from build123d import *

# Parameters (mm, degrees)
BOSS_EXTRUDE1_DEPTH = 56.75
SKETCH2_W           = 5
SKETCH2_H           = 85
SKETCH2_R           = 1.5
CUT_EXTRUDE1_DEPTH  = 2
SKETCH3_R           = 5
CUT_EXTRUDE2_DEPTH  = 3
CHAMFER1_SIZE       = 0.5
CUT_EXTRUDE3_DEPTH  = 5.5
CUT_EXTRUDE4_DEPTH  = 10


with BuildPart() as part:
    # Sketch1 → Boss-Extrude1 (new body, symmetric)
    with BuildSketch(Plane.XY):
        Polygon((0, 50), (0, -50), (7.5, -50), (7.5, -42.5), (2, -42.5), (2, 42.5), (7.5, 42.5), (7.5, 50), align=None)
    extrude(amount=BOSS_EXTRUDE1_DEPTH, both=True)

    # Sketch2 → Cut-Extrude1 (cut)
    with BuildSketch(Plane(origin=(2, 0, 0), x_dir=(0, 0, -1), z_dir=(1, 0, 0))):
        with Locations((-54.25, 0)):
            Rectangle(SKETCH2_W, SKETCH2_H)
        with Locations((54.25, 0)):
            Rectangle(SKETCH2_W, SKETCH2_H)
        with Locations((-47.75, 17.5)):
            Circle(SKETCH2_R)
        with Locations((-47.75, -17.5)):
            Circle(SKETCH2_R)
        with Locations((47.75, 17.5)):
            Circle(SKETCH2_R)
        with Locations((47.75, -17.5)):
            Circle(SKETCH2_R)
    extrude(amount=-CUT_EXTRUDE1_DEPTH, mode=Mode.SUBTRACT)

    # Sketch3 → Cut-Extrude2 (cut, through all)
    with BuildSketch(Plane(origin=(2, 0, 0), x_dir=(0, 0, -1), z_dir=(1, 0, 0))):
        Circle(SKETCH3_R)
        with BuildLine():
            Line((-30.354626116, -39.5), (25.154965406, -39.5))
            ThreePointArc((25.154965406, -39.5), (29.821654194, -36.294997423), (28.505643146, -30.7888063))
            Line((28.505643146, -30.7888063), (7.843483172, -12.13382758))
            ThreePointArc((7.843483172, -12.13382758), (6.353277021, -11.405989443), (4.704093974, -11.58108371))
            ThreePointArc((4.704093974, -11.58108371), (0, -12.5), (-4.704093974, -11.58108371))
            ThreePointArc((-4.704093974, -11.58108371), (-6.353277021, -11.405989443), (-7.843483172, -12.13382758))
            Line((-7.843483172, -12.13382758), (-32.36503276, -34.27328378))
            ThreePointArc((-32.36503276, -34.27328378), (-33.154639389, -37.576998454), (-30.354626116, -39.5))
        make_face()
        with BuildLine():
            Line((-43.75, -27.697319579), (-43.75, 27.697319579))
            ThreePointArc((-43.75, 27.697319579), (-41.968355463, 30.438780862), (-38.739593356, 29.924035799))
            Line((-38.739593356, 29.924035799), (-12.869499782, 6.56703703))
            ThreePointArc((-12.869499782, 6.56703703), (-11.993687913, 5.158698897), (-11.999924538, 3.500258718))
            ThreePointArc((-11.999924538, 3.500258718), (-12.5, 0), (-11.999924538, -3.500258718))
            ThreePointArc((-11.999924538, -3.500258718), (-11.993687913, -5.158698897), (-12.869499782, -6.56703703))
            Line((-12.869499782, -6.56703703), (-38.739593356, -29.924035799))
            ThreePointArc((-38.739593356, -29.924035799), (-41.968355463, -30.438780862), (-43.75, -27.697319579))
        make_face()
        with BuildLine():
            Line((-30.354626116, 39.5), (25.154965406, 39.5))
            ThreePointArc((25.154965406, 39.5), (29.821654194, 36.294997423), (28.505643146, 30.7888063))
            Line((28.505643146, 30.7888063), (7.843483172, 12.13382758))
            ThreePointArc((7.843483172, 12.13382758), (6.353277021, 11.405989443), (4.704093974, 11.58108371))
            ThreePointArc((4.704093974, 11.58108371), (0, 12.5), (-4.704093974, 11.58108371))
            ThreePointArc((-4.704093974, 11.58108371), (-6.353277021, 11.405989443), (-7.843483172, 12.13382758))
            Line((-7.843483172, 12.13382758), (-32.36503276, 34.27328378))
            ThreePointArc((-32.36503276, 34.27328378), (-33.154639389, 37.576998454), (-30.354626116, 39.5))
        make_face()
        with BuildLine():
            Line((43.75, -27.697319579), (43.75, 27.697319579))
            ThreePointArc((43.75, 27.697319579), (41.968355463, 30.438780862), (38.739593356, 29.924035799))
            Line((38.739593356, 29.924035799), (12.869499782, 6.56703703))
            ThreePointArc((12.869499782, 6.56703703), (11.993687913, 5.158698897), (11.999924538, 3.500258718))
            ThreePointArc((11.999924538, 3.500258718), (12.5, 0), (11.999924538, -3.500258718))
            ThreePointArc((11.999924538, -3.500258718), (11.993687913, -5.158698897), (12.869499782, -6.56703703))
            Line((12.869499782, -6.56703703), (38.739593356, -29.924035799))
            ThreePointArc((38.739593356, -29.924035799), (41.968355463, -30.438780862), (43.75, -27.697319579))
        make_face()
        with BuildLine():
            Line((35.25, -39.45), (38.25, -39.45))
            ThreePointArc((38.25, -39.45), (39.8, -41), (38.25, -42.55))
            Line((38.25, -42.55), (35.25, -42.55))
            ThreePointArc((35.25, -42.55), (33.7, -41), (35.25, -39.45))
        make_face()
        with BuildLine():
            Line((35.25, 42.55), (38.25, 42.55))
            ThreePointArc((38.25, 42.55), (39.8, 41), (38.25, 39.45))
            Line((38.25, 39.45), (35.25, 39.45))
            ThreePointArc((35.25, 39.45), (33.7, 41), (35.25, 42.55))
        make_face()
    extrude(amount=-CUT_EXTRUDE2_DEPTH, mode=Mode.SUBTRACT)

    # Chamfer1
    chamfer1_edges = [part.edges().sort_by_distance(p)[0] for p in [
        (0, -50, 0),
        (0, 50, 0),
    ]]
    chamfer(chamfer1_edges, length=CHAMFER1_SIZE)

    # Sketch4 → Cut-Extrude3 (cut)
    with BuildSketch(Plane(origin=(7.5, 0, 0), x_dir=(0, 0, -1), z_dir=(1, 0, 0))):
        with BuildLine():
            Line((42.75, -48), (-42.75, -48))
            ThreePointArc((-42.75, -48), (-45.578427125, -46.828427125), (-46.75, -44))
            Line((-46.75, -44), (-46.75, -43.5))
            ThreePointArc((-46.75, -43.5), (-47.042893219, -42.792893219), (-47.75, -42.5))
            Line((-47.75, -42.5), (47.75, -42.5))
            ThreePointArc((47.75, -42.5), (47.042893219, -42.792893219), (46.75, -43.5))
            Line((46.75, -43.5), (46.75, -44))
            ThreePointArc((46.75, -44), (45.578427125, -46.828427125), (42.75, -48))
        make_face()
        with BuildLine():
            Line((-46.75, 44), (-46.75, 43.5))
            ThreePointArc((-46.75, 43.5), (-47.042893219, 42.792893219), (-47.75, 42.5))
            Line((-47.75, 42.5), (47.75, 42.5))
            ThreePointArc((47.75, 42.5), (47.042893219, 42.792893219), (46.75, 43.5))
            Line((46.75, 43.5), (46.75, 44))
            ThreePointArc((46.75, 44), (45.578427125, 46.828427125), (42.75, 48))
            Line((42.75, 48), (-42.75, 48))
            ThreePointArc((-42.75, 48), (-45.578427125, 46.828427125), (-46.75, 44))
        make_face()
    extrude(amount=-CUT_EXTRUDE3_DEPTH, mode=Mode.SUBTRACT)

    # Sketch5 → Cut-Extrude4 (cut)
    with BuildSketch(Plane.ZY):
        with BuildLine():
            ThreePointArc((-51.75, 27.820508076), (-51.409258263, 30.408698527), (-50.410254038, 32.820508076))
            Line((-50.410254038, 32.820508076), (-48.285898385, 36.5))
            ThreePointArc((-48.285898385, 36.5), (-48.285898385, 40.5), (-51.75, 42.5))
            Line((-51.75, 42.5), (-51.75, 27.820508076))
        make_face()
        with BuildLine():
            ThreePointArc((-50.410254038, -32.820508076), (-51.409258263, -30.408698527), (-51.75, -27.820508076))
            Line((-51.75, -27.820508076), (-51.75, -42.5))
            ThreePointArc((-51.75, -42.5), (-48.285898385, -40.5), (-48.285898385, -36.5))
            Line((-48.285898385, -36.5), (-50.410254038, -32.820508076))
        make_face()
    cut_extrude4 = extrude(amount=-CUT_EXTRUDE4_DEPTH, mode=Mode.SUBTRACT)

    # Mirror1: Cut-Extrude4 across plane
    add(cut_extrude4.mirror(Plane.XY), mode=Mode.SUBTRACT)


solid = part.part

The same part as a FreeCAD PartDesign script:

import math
import FreeCAD as App
import Part
import Sketcher
Q = App.Units.Quantity


def edges_at(feature, points):
    """Names of the edges that pass closest to the given points."""
    edges = feature.Shape.Edges
    near = lambda p: min(range(len(edges)), key=lambda i: edges[i].distToShape(Part.Vertex(*p))[0])
    return sorted({f"Edge{near(p) + 1}" for p in points})

doc = App.newDocument("Part")
body = doc.addObject("PartDesign::Body", "Body")

# Sketch on XY plane
sketch1 = body.newObject("Sketcher::SketchObject", "Sketch")
sketch1.AttachmentSupport = (doc.getObject("XY_Plane"), [""])
sketch1.MapMode = "FlatFace"
sketch1.addGeometry(Part.LineSegment(App.Vector(0, 50, 0), App.Vector(0, -50, 0)), False)
sketch1.addGeometry(Part.LineSegment(App.Vector(0, -50, 0), App.Vector(8, -50, 0)), False)
sketch1.addGeometry(Part.LineSegment(App.Vector(8, -50, 0), App.Vector(8, -42, 0)), False)
sketch1.addGeometry(Part.LineSegment(App.Vector(8, -42, 0), App.Vector(2, -42, 0)), False)
sketch1.addGeometry(Part.LineSegment(App.Vector(2, -42, 0), App.Vector(2, 42, 0)), False)
sketch1.addGeometry(Part.LineSegment(App.Vector(2, 42, 0), App.Vector(8, 42, 0)), False)
sketch1.addGeometry(Part.LineSegment(App.Vector(8, 42, 0), App.Vector(8, 50, 0)), False)
sketch1.addGeometry(Part.LineSegment(App.Vector(8, 50, 0), App.Vector(0, 50, 0)), False)
sketch1.addConstraint(Sketcher.Constraint("Coincident", 0, 2, 1, 1))
sketch1.addConstraint(Sketcher.Constraint("Coincident", 1, 2, 2, 1))
sketch1.addConstraint(Sketcher.Constraint("Coincident", 2, 2, 3, 1))
sketch1.addConstraint(Sketcher.Constraint("Coincident", 3, 2, 4, 1))
sketch1.addConstraint(Sketcher.Constraint("Coincident", 4, 2, 5, 1))
sketch1.addConstraint(Sketcher.Constraint("Coincident", 5, 2, 6, 1))
sketch1.addConstraint(Sketcher.Constraint("Coincident", 6, 2, 7, 1))
sketch1.addConstraint(Sketcher.Constraint("Coincident", 7, 2, 0, 1))
sketch1.addConstraint(Sketcher.Constraint("Vertical", 0))
sketch1.addConstraint(Sketcher.Constraint("Horizontal", 1))
sketch1.addConstraint(Sketcher.Constraint("Vertical", 2))
sketch1.addConstraint(Sketcher.Constraint("Horizontal", 3))
sketch1.addConstraint(Sketcher.Constraint("Vertical", 4))
sketch1.addConstraint(Sketcher.Constraint("Horizontal", 5))
sketch1.addConstraint(Sketcher.Constraint("Vertical", 6))
sketch1.addConstraint(Sketcher.Constraint("Horizontal", 7))
sketch1.addConstraint(Sketcher.Constraint("Symmetric", 0, 2, 7, 2, -1, 1))
sketch1.addConstraint(Sketcher.Constraint("Symmetric", 2, 2, 5, 2, -1))
sketch1.addConstraint(Sketcher.Constraint("Equal", 7, 2))
sketch1.addConstraint(Sketcher.Constraint("DistanceY", 0, 2, 0, 1, Q("100 mm")))
sketch1.addConstraint(Sketcher.Constraint("DistanceY", 4, 1, 4, 2, Q("85 mm")))
sketch1.addConstraint(Sketcher.Constraint("DistanceX", 3, 2, 3, 1, Q("5.5 mm")))
pad1 = body.newObject("PartDesign::Pad", "Pad")
pad1.Profile = sketch1
pad1.Length = 113.5
pad1.Midplane = True

# Sketch on YZ plane
sketch2 = body.newObject("Sketcher::SketchObject", "Sketch001")
sketch2.AttachmentSupport = (doc.getObject("YZ_Plane"), [""])
sketch2.MapMode = "FlatFace"
sketch2.AttachmentOffset = App.Placement(App.Vector(0, 0, 2), App.Rotation())
sketch2.addGeometry(Part.LineSegment(App.Vector(42.5, 56.8, 0), App.Vector(-42.5, 56.8, 0)), False)
sketch2.addGeometry(Part.LineSegment(App.Vector(-42.5, 56.8, 0), App.Vector(-42.5, 51.8, 0)), False)
sketch2.addGeometry(Part.LineSegment(App.Vector(-42.5, 51.8, 0), App.Vector(42.5, 51.8, 0)), False)
sketch2.addGeometry(Part.LineSegment(App.Vector(42.5, 51.8, 0), App.Vector(42.5, 56.8, 0)), False)
sketch2.addGeometry(Part.LineSegment(App.Vector(42.5, -51.8, 0), App.Vector(-42.5, -51.8, 0)), False)
sketch2.addGeometry(Part.LineSegment(App.Vector(-42.5, -51.8, 0), App.Vector(-42.5, -56.8, 0)), False)
sketch2.addGeometry(Part.LineSegment(App.Vector(-42.5, -56.8, 0), App.Vector(42.5, -56.8, 0)), False)
sketch2.addGeometry(Part.LineSegment(App.Vector(42.5, -56.8, 0), App.Vector(42.5, -51.8, 0)), False)
sketch2.addGeometry(Part.Circle(App.Vector(17.5, 47.8, 0), App.Vector(0, 0, 1), 1.5), False)
sketch2.addGeometry(Part.Circle(App.Vector(-17.5, 47.8, 0), App.Vector(0, 0, 1), 1.5), False)
sketch2.addGeometry(Part.Circle(App.Vector(17.5, -47.8, 0), App.Vector(0, 0, 1), 1.5), False)
sketch2.addGeometry(Part.Circle(App.Vector(-17.5, -47.8, 0), App.Vector(0, 0, 1), 1.5), False)
sketch2.addConstraint(Sketcher.Constraint("Coincident", 0, 2, 1, 1))
sketch2.addConstraint(Sketcher.Constraint("Coincident", 1, 2, 2, 1))
sketch2.addConstraint(Sketcher.Constraint("Coincident", 2, 2, 3, 1))
sketch2.addConstraint(Sketcher.Constraint("Coincident", 3, 2, 0, 1))
sketch2.addConstraint(Sketcher.Constraint("Coincident", 4, 2, 5, 1))
sketch2.addConstraint(Sketcher.Constraint("Coincident", 5, 2, 6, 1))
sketch2.addConstraint(Sketcher.Constraint("Coincident", 6, 2, 7, 1))
sketch2.addConstraint(Sketcher.Constraint("Coincident", 7, 2, 4, 1))
sketch2.addConstraint(Sketcher.Constraint("Horizontal", 0))
sketch2.addConstraint(Sketcher.Constraint("Vertical", 1))
sketch2.addConstraint(Sketcher.Constraint("Horizontal", 2))
sketch2.addConstraint(Sketcher.Constraint("Vertical", 3))
sketch2.addConstraint(Sketcher.Constraint("Horizontal", 4))
sketch2.addConstraint(Sketcher.Constraint("Vertical", 5))
sketch2.addConstraint(Sketcher.Constraint("Horizontal", 6))
sketch2.addConstraint(Sketcher.Constraint("Vertical", 7))
sketch2.addConstraint(Sketcher.Constraint("Equal", 8, 9))
sketch2.addConstraint(Sketcher.Constraint("Equal", 9, 10))
sketch2.addConstraint(Sketcher.Constraint("Equal", 10, 11))
sketch2.addConstraint(Sketcher.Constraint("Symmetric", 9, 3, 10, 3, -1, 1))
sketch2.addConstraint(Sketcher.Constraint("Symmetric", 8, 3, 11, 3, -1, 1))
sketch2.addConstraint(Sketcher.Constraint("Symmetric", 2, 2, 4, 2, -1, 1))
sketch2.addConstraint(Sketcher.Constraint("Symmetric", 0, 2, 6, 2, -1, 1))
sketch2.addConstraint(Sketcher.Constraint("Symmetric", 8, 3, 9, 3, -2))
sketch2.addConstraint(Sketcher.Constraint("Vertical", 1, 2, 4, 2))
sketch2.addConstraint(Sketcher.Constraint("Diameter", 8, Q("3 mm")))
sketch2.addConstraint(Sketcher.Constraint("DistanceX", 0, 2, 0, 1, Q("85 mm")))
sketch2.addConstraint(Sketcher.Constraint("DistanceY", 1, 2, 1, 1, Q("5 mm")))
sketch2.addConstraint(Sketcher.Constraint("DistanceX", 9, 3, 8, 3, Q("35 mm")))
sketch2.addConstraint(Sketcher.Constraint("DistanceY", 9, 3, 0, 2, Q("9 mm")))
sketch2.addConstraint(Sketcher.Constraint("DistanceY", 10, 3, 8, 3, Q("95.5 mm")))
pocket1 = body.newObject("PartDesign::Pocket", "Pocket")
pocket1.Profile = sketch2
pocket1.Length = 2

# Sketch on YZ plane
sketch3 = body.newObject("Sketcher::SketchObject", "Sketch002")
sketch3.AttachmentSupport = (doc.getObject("YZ_Plane"), [""])
sketch3.MapMode = "FlatFace"
sketch3.AttachmentOffset = App.Placement(App.Vector(0, 0, 2), App.Rotation())
sketch3.addGeometry(Part.Circle(App.Vector(0, 0, 0), App.Vector(0, 0, 1), 5), False)
sketch3.addGeometry(Part.LineSegment(App.Vector(-39.5, 30.4, 0), App.Vector(-39.5, -25.2, 0)), False)
sketch3.addGeometry(Part.ArcOfCircle(Part.Circle(App.Vector(-34.5, -25.2, 0), App.Vector(0, 0, 1), 5), math.radians(-180), math.radians(-42)), False)
sketch3.addGeometry(Part.LineSegment(App.Vector(-30.8, -28.5, 0), App.Vector(-12.1, -7.8, 0)), False)
sketch3.addGeometry(Part.ArcOfCircle(Part.Circle(App.Vector(-14.4, -5.8, 0), App.Vector(0, 0, 1), 3), math.radians(-42), math.radians(22)), False)
sketch3.addGeometry(Part.ArcOfCircle(Part.Circle(App.Vector(0, 0, 0), App.Vector(0, 0, 1), 12.5), math.radians(158), math.radians(202)), False)
sketch3.addGeometry(Part.ArcOfCircle(Part.Circle(App.Vector(-14.4, 5.8, 0), App.Vector(0, 0, 1), 3), math.radians(-22), math.radians(42)), False)
sketch3.addGeometry(Part.LineSegment(App.Vector(-12.1, 7.8, 0), App.Vector(-34.3, 32.4, 0)), False)
sketch3.addGeometry(Part.ArcOfCircle(Part.Circle(App.Vector(-36.5, 30.4, 0), App.Vector(0, 0, 1), 3), math.radians(42), math.radians(180)), False)
sketch3.addGeometry(Part.LineSegment(App.Vector(27.7, 43.8, 0), App.Vector(-27.7, 43.8, 0)), False)
sketch3.addGeometry(Part.ArcOfCircle(Part.Circle(App.Vector(-27.7, 40.8, 0), App.Vector(0, 0, 1), 3), math.radians(90), math.radians(222)), False)
sketch3.addGeometry(Part.LineSegment(App.Vector(-29.9, 38.7, 0), App.Vector(-6.6, 12.9, 0)), False)
sketch3.addGeometry(Part.ArcOfCircle(Part.Circle(App.Vector(-4.3, 14.9, 0), App.Vector(0, 0, 1), 3), math.radians(-138), math.radians(-74)), False)
sketch3.addGeometry(Part.ArcOfCircle(Part.Circle(App.Vector(0, 0, 0), App.Vector(0, 0, 1), 12.5), math.radians(74), math.radians(106)), False)
sketch3.addGeometry(Part.ArcOfCircle(Part.Circle(App.Vector(4.3, 14.9, 0), App.Vector(0, 0, 1), 3), math.radians(-106), math.radians(-42)), False)
sketch3.addGeometry(Part.LineSegment(App.Vector(6.6, 12.9, 0), App.Vector(29.9, 38.7, 0)), False)
sketch3.addGeometry(Part.ArcOfCircle(Part.Circle(App.Vector(27.7, 40.8, 0), App.Vector(0, 0, 1), 3), math.radians(-42), math.radians(90)), False)
sketch3.addGeometry(Part.LineSegment(App.Vector(39.5, -25.2, 0), App.Vector(39.5, 30.4, 0)), False)
sketch3.addGeometry(Part.ArcOfCircle(Part.Circle(App.Vector(36.5, 30.4, 0), App.Vector(0, 0, 1), 3), math.radians(0), math.radians(138)), False)
sketch3.addGeometry(Part.LineSegment(App.Vector(34.3, 32.4, 0), App.Vector(12.1, 7.8, 0)), False)
sketch3.addGeometry(Part.ArcOfCircle(Part.Circle(App.Vector(14.4, 5.8, 0), App.Vector(0, 0, 1), 3), math.radians(138), math.radians(202)), False)
sketch3.addGeometry(Part.ArcOfCircle(Part.Circle(App.Vector(0, 0, 0), App.Vector(0, 0, 1), 12.5), math.radians(-22), math.radians(22)), False)
sketch3.addGeometry(Part.ArcOfCircle(Part.Circle(App.Vector(14.4, -5.8, 0), App.Vector(0, 0, 1), 3), math.radians(158), math.radians(222)), False)
sketch3.addGeometry(Part.LineSegment(App.Vector(12.1, -7.8, 0), App.Vector(30.8, -28.5, 0)), False)
sketch3.addGeometry(Part.ArcOfCircle(Part.Circle(App.Vector(34.5, -25.2, 0), App.Vector(0, 0, 1), 5), math.radians(-138), math.radians(0)), False)
sketch3.addGeometry(Part.LineSegment(App.Vector(-27.7, -43.8, 0), App.Vector(27.7, -43.8, 0)), False)
sketch3.addGeometry(Part.ArcOfCircle(Part.Circle(App.Vector(27.7, -40.8, 0), App.Vector(0, 0, 1), 3), math.radians(-90), math.radians(42)), False)
sketch3.addGeometry(Part.LineSegment(App.Vector(29.9, -38.7, 0), App.Vector(6.6, -12.9, 0)), False)
sketch3.addGeometry(Part.ArcOfCircle(Part.Circle(App.Vector(4.3, -14.9, 0), App.Vector(0, 0, 1), 3), math.radians(42), math.radians(106)), False)
sketch3.addGeometry(Part.ArcOfCircle(Part.Circle(App.Vector(0, 0, 0), App.Vector(0, 0, 1), 12.5), math.radians(-106), math.radians(-74)), False)
sketch3.addGeometry(Part.ArcOfCircle(Part.Circle(App.Vector(-4.3, -14.9, 0), App.Vector(0, 0, 1), 3), math.radians(74), math.radians(138)), False)
sketch3.addGeometry(Part.LineSegment(App.Vector(-6.6, -12.9, 0), App.Vector(-29.9, -38.7, 0)), False)
sketch3.addGeometry(Part.ArcOfCircle(Part.Circle(App.Vector(-27.7, -40.8, 0), App.Vector(0, 0, 1), 3), math.radians(138), math.radians(270)), False)
sketch3.addGeometry(Part.LineSegment(App.Vector(-39.5, -38.2, 0), App.Vector(-39.5, -35.2, 0)), False)
sketch3.addGeometry(Part.ArcOfCircle(Part.Circle(App.Vector(-41, -35.2, 0), App.Vector(0, 0, 1), 1.6), math.radians(0), math.radians(180)), False)
sketch3.addGeometry(Part.LineSegment(App.Vector(-42.5, -35.2, 0), App.Vector(-42.5, -38.2, 0)), False)
sketch3.addGeometry(Part.ArcOfCircle(Part.Circle(App.Vector(-41, -38.2, 0), App.Vector(0, 0, 1), 1.6), math.radians(180), math.radians(360)), False)
sketch3.addGeometry(Part.LineSegment(App.Vector(42.5, -38.2, 0), App.Vector(42.5, -35.2, 0)), False)
sketch3.addGeometry(Part.ArcOfCircle(Part.Circle(App.Vector(41, -35.2, 0), App.Vector(0, 0, 1), 1.6), math.radians(0), math.radians(180)), False)
sketch3.addGeometry(Part.LineSegment(App.Vector(39.5, -35.2, 0), App.Vector(39.5, -38.2, 0)), False)
sketch3.addGeometry(Part.ArcOfCircle(Part.Circle(App.Vector(41, -38.2, 0), App.Vector(0, 0, 1), 1.6), math.radians(180), math.radians(360)), False)
sketch3.addConstraint(Sketcher.Constraint("Tangent", 1, 2, 2, 1))
sketch3.addConstraint(Sketcher.Constraint("Tangent", 2, 2, 3, 1))
sketch3.addConstraint(Sketcher.Constraint("Tangent", 3, 2, 4, 1))
sketch3.addConstraint(Sketcher.Constraint("Tangent", 4, 2, 5, 2))
sketch3.addConstraint(Sketcher.Constraint("Tangent", 5, 1, 6, 1))
sketch3.addConstraint(Sketcher.Constraint("Tangent", 6, 2, 7, 1))
sketch3.addConstraint(Sketcher.Constraint("Tangent", 7, 2, 8, 1))
sketch3.addConstraint(Sketcher.Constraint("Tangent", 8, 2, 1, 1))
sketch3.addConstraint(Sketcher.Constraint("Tangent", 9, 2, 10, 1))
sketch3.addConstraint(Sketcher.Constraint("Tangent", 10, 2, 11, 1))
sketch3.addConstraint(Sketcher.Constraint("Tangent", 11, 2, 12, 1))
sketch3.addConstraint(Sketcher.Constraint("Tangent", 12, 2, 13, 2))
sketch3.addConstraint(Sketcher.Constraint("Tangent", 13, 1, 14, 1))
sketch3.addConstraint(Sketcher.Constraint("Tangent", 14, 2, 15, 1))
sketch3.addConstraint(Sketcher.Constraint("Tangent", 15, 2, 16, 1))
sketch3.addConstraint(Sketcher.Constraint("Tangent", 16, 2, 9, 1))
sketch3.addConstraint(Sketcher.Constraint("Tangent", 17, 2, 18, 1))
sketch3.addConstraint(Sketcher.Constraint("Tangent", 18, 2, 19, 1))
sketch3.addConstraint(Sketcher.Constraint("Tangent", 19, 2, 20, 1))
sketch3.addConstraint(Sketcher.Constraint("Tangent", 20, 2, 21, 2))
sketch3.addConstraint(Sketcher.Constraint("Tangent", 21, 1, 22, 1))
sketch3.addConstraint(Sketcher.Constraint("Tangent", 22, 2, 23, 1))
sketch3.addConstraint(Sketcher.Constraint("Tangent", 23, 2, 24, 1))
sketch3.addConstraint(Sketcher.Constraint("Tangent", 24, 2, 17, 1))
sketch3.addConstraint(Sketcher.Constraint("Tangent", 25, 2, 26, 1))
sketch3.addConstraint(Sketcher.Constraint("Tangent", 26, 2, 27, 1))
sketch3.addConstraint(Sketcher.Constraint("Tangent", 27, 2, 28, 1))
sketch3.addConstraint(Sketcher.Constraint("Tangent", 28, 2, 29, 2))
sketch3.addConstraint(Sketcher.Constraint("Tangent", 29, 1, 30, 1))
sketch3.addConstraint(Sketcher.Constraint("Tangent", 30, 2, 31, 1))
sketch3.addConstraint(Sketcher.Constraint("Tangent", 31, 2, 32, 1))
sketch3.addConstraint(Sketcher.Constraint("Tangent", 32, 2, 25, 1))
sketch3.addConstraint(Sketcher.Constraint("Tangent", 33, 2, 34, 1))
sketch3.addConstraint(Sketcher.Constraint("Tangent", 34, 2, 35, 1))
sketch3.addConstraint(Sketcher.Constraint("Tangent", 35, 2, 36, 1))
sketch3.addConstraint(Sketcher.Constraint("Tangent", 36, 2, 33, 1))
sketch3.addConstraint(Sketcher.Constraint("Tangent", 37, 2, 38, 1))
sketch3.addConstraint(Sketcher.Constraint("Tangent", 38, 2, 39, 1))
sketch3.addConstraint(Sketcher.Constraint("Tangent", 39, 2, 40, 1))
sketch3.addConstraint(Sketcher.Constraint("Tangent", 40, 2, 37, 1))
sketch3.addConstraint(Sketcher.Constraint("Vertical", 1))
sketch3.addConstraint(Sketcher.Constraint("Horizontal", 9))
sketch3.addConstraint(Sketcher.Constraint("Vertical", 17))
sketch3.addConstraint(Sketcher.Constraint("Horizontal", 25))
sketch3.addConstraint(Sketcher.Constraint("Vertical", 33))
sketch3.addConstraint(Sketcher.Constraint("Vertical", 35))
sketch3.addConstraint(Sketcher.Constraint("Vertical", 37))
sketch3.addConstraint(Sketcher.Constraint("Vertical", 39))
sketch3.addConstraint(Sketcher.Constraint("Coincident", 0, 3, -1, 1))
sketch3.addConstraint(Sketcher.Constraint("Coincident", 5, 3, -1, 1))
sketch3.addConstraint(Sketcher.Constraint("Coincident", 13, 3, -1, 1))
sketch3.addConstraint(Sketcher.Constraint("Coincident", 21, 3, -1, 1))
sketch3.addConstraint(Sketcher.Constraint("Coincident", 29, 3, -1, 1))
sketch3.addConstraint(Sketcher.Constraint("Equal", 0, 2))
sketch3.addConstraint(Sketcher.Constraint("Equal", 4, 6))
sketch3.addConstraint(Sketcher.Constraint("Equal", 6, 8))
sketch3.addConstraint(Sketcher.Constraint("Equal", 8, 10))
sketch3.addConstraint(Sketcher.Constraint("Equal", 10, 12))
sketch3.addConstraint(Sketcher.Constraint("Equal", 5, 13))
sketch3.addConstraint(Sketcher.Constraint("Equal", 12, 14))
sketch3.addConstraint(Sketcher.Constraint("Equal", 14, 16))
sketch3.addConstraint(Sketcher.Constraint("Equal", 16, 18))
sketch3.addConstraint(Sketcher.Constraint("Equal", 18, 20))
sketch3.addConstraint(Sketcher.Constraint("Equal", 13, 21))
sketch3.addConstraint(Sketcher.Constraint("Equal", 20, 22))
sketch3.addConstraint(Sketcher.Constraint("Equal", 2, 24))
sketch3.addConstraint(Sketcher.Constraint("Equal", 22, 26))
sketch3.addConstraint(Sketcher.Constraint("Equal", 26, 28))
sketch3.addConstraint(Sketcher.Constraint("Equal", 21, 29))
sketch3.addConstraint(Sketcher.Constraint("Equal", 28, 30))
sketch3.addConstraint(Sketcher.Constraint("Equal", 30, 32))
sketch3.addConstraint(Sketcher.Constraint("Equal", 36, 38))
sketch3.addConstraint(Sketcher.Constraint("Symmetric", 10, 3, 26, 3, -1, 1))
sketch3.addConstraint(Sketcher.Constraint("Symmetric", 3, 2, 19, 2, -1, 1))
sketch3.addConstraint(Sketcher.Constraint("Symmetric", 6, 2, 22, 2, -1, 1))
sketch3.addConstraint(Sketcher.Constraint("Symmetric", 14, 2, 30, 2, -1, 1))
sketch3.addConstraint(Sketcher.Constraint("Symmetric", 8, 3, 18, 3, -2))
sketch3.addConstraint(Sketcher.Constraint("Symmetric", 34, 3, 38, 3, -2))
sketch3.addConstraint(Sketcher.Constraint("Symmetric", 11, 2, 14, 2, -2))
sketch3.addConstraint(Sketcher.Constraint("Parallel", 7, 11))
sketch3.addConstraint(Sketcher.Constraint("Parallel", 3, 15))
sketch3.addConstraint(Sketcher.Constraint("Parallel", 23, 27))
sketch3.addConstraint(Sketcher.Constraint("Horizontal", 36, 3, 40, 3))
sketch3.addConstraint(Sketcher.Constraint("Diameter", 0, Q("10 mm")))
sketch3.addConstraint(Sketcher.Constraint("Radius", 4, Q("3 mm")))
sketch3.addConstraint(Sketcher.Constraint("Radius", 5, Q("12.5 mm")))
sketch3.addConstraint(Sketcher.Constraint("DistanceY", 33, 1, 33, 2, Q("3 mm")))
sketch3.addConstraint(Sketcher.Constraint("Radius", 34, Q("1.55 mm")))
sketch3.addConstraint(Sketcher.Constraint("DistanceX", 34, 3, -1, 1, Q("41 mm")))
sketch3.addConstraint(Sketcher.Constraint("DistanceX", 2, 3, -1, 1, Q("34.5 mm")))
sketch3.addConstraint(Sketcher.Constraint("DistanceY", -1, 1, 10, 3, Q("40.75 mm")))
sketch3.addConstraint(Sketcher.Constraint("DistanceY", 34, 3, -1, 1, Q("35.25 mm")))
sketch3.addConstraint(Sketcher.Constraint("DistanceX", 9, 2, 9, 1, Q("55.394639 mm")))
sketch3.addConstraint(Sketcher.Constraint("DistanceY", 1, 2, 1, 1, Q("55.509592 mm")))
sketch3.addConstraint(Sketcher.Constraint("DistanceY", -1, 1, 11, 2, Q("12.8695 mm")))
pocket2 = body.newObject("PartDesign::Pocket", "Pocket001")
pocket2.Profile = sketch3
pocket2.Type = "ThroughAll"
doc.recompute()

chamfer = body.newObject("PartDesign::Chamfer", "Chamfer")
chamfer.Base = (pocket2, edges_at(pocket2, [(0, -50, 0), (0, 50, 0)]))
chamfer.Size = 0.5

# Sketch on YZ plane
sketch4 = body.newObject("Sketcher::SketchObject", "Sketch003")
sketch4.AttachmentSupport = (doc.getObject("YZ_Plane"), [""])
sketch4.MapMode = "FlatFace"
sketch4.AttachmentOffset = App.Placement(App.Vector(0, 0, 7.5), App.Rotation())
sketch4.addGeometry(Part.LineSegment(App.Vector(-48, 42.8, 0), App.Vector(-48, -42.8, 0)), False)
sketch4.addGeometry(Part.ArcOfCircle(Part.Circle(App.Vector(-44, -42.8, 0), App.Vector(0, 0, 1), 4), math.radians(180), math.radians(270)), False)
sketch4.addGeometry(Part.LineSegment(App.Vector(-44, -46.8, 0), App.Vector(-43.5, -46.8, 0)), False)
sketch4.addGeometry(Part.ArcOfCircle(Part.Circle(App.Vector(-43.5, -47.8, 0), App.Vector(0, 0, 1), 1), math.radians(0), math.radians(90)), False)
sketch4.addGeometry(Part.LineSegment(App.Vector(-42.5, -47.8, 0), App.Vector(-42.5, 47.8, 0)), False)
sketch4.addGeometry(Part.ArcOfCircle(Part.Circle(App.Vector(-43.5, 47.8, 0), App.Vector(0, 0, 1), 1), math.radians(-90), math.radians(0)), False)
sketch4.addGeometry(Part.LineSegment(App.Vector(-43.5, 46.8, 0), App.Vector(-44, 46.8, 0)), False)
sketch4.addGeometry(Part.ArcOfCircle(Part.Circle(App.Vector(-44, 42.8, 0), App.Vector(0, 0, 1), 4), math.radians(90), math.radians(180)), False)
sketch4.addGeometry(Part.LineSegment(App.Vector(44, 46.8, 0), App.Vector(43.5, 46.8, 0)), False)
sketch4.addGeometry(Part.ArcOfCircle(Part.Circle(App.Vector(43.5, 47.8, 0), App.Vector(0, 0, 1), 1), math.radians(-180), math.radians(-90)), False)
sketch4.addGeometry(Part.LineSegment(App.Vector(42.5, 47.8, 0), App.Vector(42.5, -47.8, 0)), False)
sketch4.addGeometry(Part.ArcOfCircle(Part.Circle(App.Vector(43.5, -47.8, 0), App.Vector(0, 0, 1), 1), math.radians(90), math.radians(180)), False)
sketch4.addGeometry(Part.LineSegment(App.Vector(43.5, -46.8, 0), App.Vector(44, -46.8, 0)), False)
sketch4.addGeometry(Part.ArcOfCircle(Part.Circle(App.Vector(44, -42.8, 0), App.Vector(0, 0, 1), 4), math.radians(-90), math.radians(0)), False)
sketch4.addGeometry(Part.LineSegment(App.Vector(48, -42.8, 0), App.Vector(48, 42.8, 0)), False)
sketch4.addGeometry(Part.ArcOfCircle(Part.Circle(App.Vector(44, 42.8, 0), App.Vector(0, 0, 1), 4), math.radians(0), math.radians(90)), False)
sketch4.addConstraint(Sketcher.Constraint("Tangent", 0, 2, 1, 1))
sketch4.addConstraint(Sketcher.Constraint("Tangent", 1, 2, 2, 1))
sketch4.addConstraint(Sketcher.Constraint("Tangent", 2, 2, 3, 2))
sketch4.addConstraint(Sketcher.Constraint("Tangent", 3, 1, 4, 1))
sketch4.addConstraint(Sketcher.Constraint("Tangent", 4, 2, 5, 2))
sketch4.addConstraint(Sketcher.Constraint("Tangent", 5, 1, 6, 1))
sketch4.addConstraint(Sketcher.Constraint("Tangent", 6, 2, 7, 1))
sketch4.addConstraint(Sketcher.Constraint("Tangent", 7, 2, 0, 1))
sketch4.addConstraint(Sketcher.Constraint("Tangent", 8, 2, 9, 2))
sketch4.addConstraint(Sketcher.Constraint("Tangent", 9, 1, 10, 1))
sketch4.addConstraint(Sketcher.Constraint("Tangent", 10, 2, 11, 2))
sketch4.addConstraint(Sketcher.Constraint("Tangent", 11, 1, 12, 1))
sketch4.addConstraint(Sketcher.Constraint("Tangent", 12, 2, 13, 1))
sketch4.addConstraint(Sketcher.Constraint("Tangent", 13, 2, 14, 1))
sketch4.addConstraint(Sketcher.Constraint("Tangent", 14, 2, 15, 1))
sketch4.addConstraint(Sketcher.Constraint("Tangent", 15, 2, 8, 1))
sketch4.addConstraint(Sketcher.Constraint("Vertical", 0))
sketch4.addConstraint(Sketcher.Constraint("Horizontal", 2))
sketch4.addConstraint(Sketcher.Constraint("Vertical", 4))
sketch4.addConstraint(Sketcher.Constraint("Horizontal", 6))
sketch4.addConstraint(Sketcher.Constraint("Horizontal", 8))
sketch4.addConstraint(Sketcher.Constraint("Vertical", 10))
sketch4.addConstraint(Sketcher.Constraint("Horizontal", 12))
sketch4.addConstraint(Sketcher.Constraint("Vertical", 14))
sketch4.addConstraint(Sketcher.Constraint("Equal", 3, 5))
sketch4.addConstraint(Sketcher.Constraint("Equal", 1, 7))
sketch4.addConstraint(Sketcher.Constraint("Equal", 5, 9))
sketch4.addConstraint(Sketcher.Constraint("Equal", 9, 11))
sketch4.addConstraint(Sketcher.Constraint("Equal", 7, 13))
sketch4.addConstraint(Sketcher.Constraint("Equal", 13, 15))
sketch4.addConstraint(Sketcher.Constraint("Symmetric", 3, 3, 9, 3, -1, 1))
sketch4.addConstraint(Sketcher.Constraint("Symmetric", 7, 3, 13, 3, -1, 1))
sketch4.addConstraint(Sketcher.Constraint("Horizontal", 5, 3, 9, 3))
sketch4.addConstraint(Sketcher.Constraint("Radius", 1, Q("4 mm")))
sketch4.addConstraint(Sketcher.Constraint("Radius", 3, Q("1 mm")))
sketch4.addConstraint(Sketcher.Constraint("DistanceX", 2, 1, 2, 2, Q("0.5 mm")))
sketch4.addConstraint(Sketcher.Constraint("DistanceY", 0, 2, 0, 1, Q("85.5 mm")))
sketch4.addConstraint(Sketcher.Constraint("DistanceX", 1, 3, -1, 1, Q("44 mm")))
pocket3 = body.newObject("PartDesign::Pocket", "Pocket002")
pocket3.Profile = sketch4
pocket3.Length = 5.5

# Sketch on YZ plane
sketch5 = body.newObject("Sketcher::SketchObject", "Sketch004")
sketch5.AttachmentSupport = (doc.getObject("YZ_Plane"), [""])
sketch5.MapMode = "FlatFace"
sketch5.addGeometry(Part.ArcOfCircle(Part.Circle(App.Vector(27.8, -41.8, 0), App.Vector(0, 0, 1), 10), math.radians(-90), math.radians(-60)), False)
sketch5.addGeometry(Part.LineSegment(App.Vector(32.8, -50.4, 0), App.Vector(36.5, -48.3, 0)), False)
sketch5.addGeometry(Part.ArcOfCircle(Part.Circle(App.Vector(38.5, -51.8, 0), App.Vector(0, 0, 1), 4), math.radians(0), math.radians(120)), False)
sketch5.addGeometry(Part.LineSegment(App.Vector(42.5, -51.8, 0), App.Vector(27.8, -51.8, 0)), False)
sketch5.addGeometry(Part.ArcOfCircle(Part.Circle(App.Vector(-27.8, -41.8, 0), App.Vector(0, 0, 1), 10), math.radians(-120), math.radians(-90)), False)
sketch5.addGeometry(Part.LineSegment(App.Vector(-27.8, -51.8, 0), App.Vector(-42.5, -51.8, 0)), False)
sketch5.addGeometry(Part.ArcOfCircle(Part.Circle(App.Vector(-38.5, -51.8, 0), App.Vector(0, 0, 1), 4), math.radians(60), math.radians(180)), False)
sketch5.addGeometry(Part.LineSegment(App.Vector(-36.5, -48.3, 0), App.Vector(-32.8, -50.4, 0)), False)
sketch5.addConstraint(Sketcher.Constraint("Tangent", 0, 2, 1, 1))
sketch5.addConstraint(Sketcher.Constraint("Tangent", 1, 2, 2, 2))
sketch5.addConstraint(Sketcher.Constraint("Coincident", 2, 1, 3, 1))
sketch5.addConstraint(Sketcher.Constraint("Tangent", 3, 2, 0, 1))
sketch5.addConstraint(Sketcher.Constraint("Tangent", 4, 2, 5, 1))
sketch5.addConstraint(Sketcher.Constraint("Coincident", 5, 2, 6, 2))
sketch5.addConstraint(Sketcher.Constraint("Tangent", 6, 1, 7, 1))
sketch5.addConstraint(Sketcher.Constraint("Tangent", 7, 2, 4, 1))
sketch5.addConstraint(Sketcher.Constraint("Horizontal", 3))
sketch5.addConstraint(Sketcher.Constraint("Horizontal", 5))
sketch5.addConstraint(Sketcher.Constraint("Equal", 0, 4))
sketch5.addConstraint(Sketcher.Constraint("Equal", 2, 6))
sketch5.addConstraint(Sketcher.Constraint("Symmetric", 0, 3, 4, 3, -2))
sketch5.addConstraint(Sketcher.Constraint("Symmetric", 2, 3, 6, 3, -2))
sketch5.addConstraint(Sketcher.Constraint("Horizontal", 6, 3, 2, 1))
sketch5.addConstraint(Sketcher.Constraint("Radius", 0, Q("10 mm")))
sketch5.addConstraint(Sketcher.Constraint("Radius", 2, Q("4 mm")))
sketch5.addConstraint(Sketcher.Constraint("Angle", 1, Q("30 deg")))
sketch5.addConstraint(Sketcher.Constraint("DistanceX", 6, 3, 2, 3, Q("77 mm")))
sketch5.addConstraint(Sketcher.Constraint("DistanceY", 0, 3, -1, 1, Q("41.75 mm")))
pocket4 = body.newObject("PartDesign::Pocket", "Pocket003")
pocket4.Profile = sketch5
pocket4.Length = 10
pocket4.Reversed = True
doc.recompute()

mirrored = body.newObject("PartDesign::Mirrored", "Mirrored")
mirrored.Originals = [pocket4]
mirrored.MirrorPlane = (doc.getObject("XY_Plane"), [""])
body.Tip = mirrored

doc.recompute()
